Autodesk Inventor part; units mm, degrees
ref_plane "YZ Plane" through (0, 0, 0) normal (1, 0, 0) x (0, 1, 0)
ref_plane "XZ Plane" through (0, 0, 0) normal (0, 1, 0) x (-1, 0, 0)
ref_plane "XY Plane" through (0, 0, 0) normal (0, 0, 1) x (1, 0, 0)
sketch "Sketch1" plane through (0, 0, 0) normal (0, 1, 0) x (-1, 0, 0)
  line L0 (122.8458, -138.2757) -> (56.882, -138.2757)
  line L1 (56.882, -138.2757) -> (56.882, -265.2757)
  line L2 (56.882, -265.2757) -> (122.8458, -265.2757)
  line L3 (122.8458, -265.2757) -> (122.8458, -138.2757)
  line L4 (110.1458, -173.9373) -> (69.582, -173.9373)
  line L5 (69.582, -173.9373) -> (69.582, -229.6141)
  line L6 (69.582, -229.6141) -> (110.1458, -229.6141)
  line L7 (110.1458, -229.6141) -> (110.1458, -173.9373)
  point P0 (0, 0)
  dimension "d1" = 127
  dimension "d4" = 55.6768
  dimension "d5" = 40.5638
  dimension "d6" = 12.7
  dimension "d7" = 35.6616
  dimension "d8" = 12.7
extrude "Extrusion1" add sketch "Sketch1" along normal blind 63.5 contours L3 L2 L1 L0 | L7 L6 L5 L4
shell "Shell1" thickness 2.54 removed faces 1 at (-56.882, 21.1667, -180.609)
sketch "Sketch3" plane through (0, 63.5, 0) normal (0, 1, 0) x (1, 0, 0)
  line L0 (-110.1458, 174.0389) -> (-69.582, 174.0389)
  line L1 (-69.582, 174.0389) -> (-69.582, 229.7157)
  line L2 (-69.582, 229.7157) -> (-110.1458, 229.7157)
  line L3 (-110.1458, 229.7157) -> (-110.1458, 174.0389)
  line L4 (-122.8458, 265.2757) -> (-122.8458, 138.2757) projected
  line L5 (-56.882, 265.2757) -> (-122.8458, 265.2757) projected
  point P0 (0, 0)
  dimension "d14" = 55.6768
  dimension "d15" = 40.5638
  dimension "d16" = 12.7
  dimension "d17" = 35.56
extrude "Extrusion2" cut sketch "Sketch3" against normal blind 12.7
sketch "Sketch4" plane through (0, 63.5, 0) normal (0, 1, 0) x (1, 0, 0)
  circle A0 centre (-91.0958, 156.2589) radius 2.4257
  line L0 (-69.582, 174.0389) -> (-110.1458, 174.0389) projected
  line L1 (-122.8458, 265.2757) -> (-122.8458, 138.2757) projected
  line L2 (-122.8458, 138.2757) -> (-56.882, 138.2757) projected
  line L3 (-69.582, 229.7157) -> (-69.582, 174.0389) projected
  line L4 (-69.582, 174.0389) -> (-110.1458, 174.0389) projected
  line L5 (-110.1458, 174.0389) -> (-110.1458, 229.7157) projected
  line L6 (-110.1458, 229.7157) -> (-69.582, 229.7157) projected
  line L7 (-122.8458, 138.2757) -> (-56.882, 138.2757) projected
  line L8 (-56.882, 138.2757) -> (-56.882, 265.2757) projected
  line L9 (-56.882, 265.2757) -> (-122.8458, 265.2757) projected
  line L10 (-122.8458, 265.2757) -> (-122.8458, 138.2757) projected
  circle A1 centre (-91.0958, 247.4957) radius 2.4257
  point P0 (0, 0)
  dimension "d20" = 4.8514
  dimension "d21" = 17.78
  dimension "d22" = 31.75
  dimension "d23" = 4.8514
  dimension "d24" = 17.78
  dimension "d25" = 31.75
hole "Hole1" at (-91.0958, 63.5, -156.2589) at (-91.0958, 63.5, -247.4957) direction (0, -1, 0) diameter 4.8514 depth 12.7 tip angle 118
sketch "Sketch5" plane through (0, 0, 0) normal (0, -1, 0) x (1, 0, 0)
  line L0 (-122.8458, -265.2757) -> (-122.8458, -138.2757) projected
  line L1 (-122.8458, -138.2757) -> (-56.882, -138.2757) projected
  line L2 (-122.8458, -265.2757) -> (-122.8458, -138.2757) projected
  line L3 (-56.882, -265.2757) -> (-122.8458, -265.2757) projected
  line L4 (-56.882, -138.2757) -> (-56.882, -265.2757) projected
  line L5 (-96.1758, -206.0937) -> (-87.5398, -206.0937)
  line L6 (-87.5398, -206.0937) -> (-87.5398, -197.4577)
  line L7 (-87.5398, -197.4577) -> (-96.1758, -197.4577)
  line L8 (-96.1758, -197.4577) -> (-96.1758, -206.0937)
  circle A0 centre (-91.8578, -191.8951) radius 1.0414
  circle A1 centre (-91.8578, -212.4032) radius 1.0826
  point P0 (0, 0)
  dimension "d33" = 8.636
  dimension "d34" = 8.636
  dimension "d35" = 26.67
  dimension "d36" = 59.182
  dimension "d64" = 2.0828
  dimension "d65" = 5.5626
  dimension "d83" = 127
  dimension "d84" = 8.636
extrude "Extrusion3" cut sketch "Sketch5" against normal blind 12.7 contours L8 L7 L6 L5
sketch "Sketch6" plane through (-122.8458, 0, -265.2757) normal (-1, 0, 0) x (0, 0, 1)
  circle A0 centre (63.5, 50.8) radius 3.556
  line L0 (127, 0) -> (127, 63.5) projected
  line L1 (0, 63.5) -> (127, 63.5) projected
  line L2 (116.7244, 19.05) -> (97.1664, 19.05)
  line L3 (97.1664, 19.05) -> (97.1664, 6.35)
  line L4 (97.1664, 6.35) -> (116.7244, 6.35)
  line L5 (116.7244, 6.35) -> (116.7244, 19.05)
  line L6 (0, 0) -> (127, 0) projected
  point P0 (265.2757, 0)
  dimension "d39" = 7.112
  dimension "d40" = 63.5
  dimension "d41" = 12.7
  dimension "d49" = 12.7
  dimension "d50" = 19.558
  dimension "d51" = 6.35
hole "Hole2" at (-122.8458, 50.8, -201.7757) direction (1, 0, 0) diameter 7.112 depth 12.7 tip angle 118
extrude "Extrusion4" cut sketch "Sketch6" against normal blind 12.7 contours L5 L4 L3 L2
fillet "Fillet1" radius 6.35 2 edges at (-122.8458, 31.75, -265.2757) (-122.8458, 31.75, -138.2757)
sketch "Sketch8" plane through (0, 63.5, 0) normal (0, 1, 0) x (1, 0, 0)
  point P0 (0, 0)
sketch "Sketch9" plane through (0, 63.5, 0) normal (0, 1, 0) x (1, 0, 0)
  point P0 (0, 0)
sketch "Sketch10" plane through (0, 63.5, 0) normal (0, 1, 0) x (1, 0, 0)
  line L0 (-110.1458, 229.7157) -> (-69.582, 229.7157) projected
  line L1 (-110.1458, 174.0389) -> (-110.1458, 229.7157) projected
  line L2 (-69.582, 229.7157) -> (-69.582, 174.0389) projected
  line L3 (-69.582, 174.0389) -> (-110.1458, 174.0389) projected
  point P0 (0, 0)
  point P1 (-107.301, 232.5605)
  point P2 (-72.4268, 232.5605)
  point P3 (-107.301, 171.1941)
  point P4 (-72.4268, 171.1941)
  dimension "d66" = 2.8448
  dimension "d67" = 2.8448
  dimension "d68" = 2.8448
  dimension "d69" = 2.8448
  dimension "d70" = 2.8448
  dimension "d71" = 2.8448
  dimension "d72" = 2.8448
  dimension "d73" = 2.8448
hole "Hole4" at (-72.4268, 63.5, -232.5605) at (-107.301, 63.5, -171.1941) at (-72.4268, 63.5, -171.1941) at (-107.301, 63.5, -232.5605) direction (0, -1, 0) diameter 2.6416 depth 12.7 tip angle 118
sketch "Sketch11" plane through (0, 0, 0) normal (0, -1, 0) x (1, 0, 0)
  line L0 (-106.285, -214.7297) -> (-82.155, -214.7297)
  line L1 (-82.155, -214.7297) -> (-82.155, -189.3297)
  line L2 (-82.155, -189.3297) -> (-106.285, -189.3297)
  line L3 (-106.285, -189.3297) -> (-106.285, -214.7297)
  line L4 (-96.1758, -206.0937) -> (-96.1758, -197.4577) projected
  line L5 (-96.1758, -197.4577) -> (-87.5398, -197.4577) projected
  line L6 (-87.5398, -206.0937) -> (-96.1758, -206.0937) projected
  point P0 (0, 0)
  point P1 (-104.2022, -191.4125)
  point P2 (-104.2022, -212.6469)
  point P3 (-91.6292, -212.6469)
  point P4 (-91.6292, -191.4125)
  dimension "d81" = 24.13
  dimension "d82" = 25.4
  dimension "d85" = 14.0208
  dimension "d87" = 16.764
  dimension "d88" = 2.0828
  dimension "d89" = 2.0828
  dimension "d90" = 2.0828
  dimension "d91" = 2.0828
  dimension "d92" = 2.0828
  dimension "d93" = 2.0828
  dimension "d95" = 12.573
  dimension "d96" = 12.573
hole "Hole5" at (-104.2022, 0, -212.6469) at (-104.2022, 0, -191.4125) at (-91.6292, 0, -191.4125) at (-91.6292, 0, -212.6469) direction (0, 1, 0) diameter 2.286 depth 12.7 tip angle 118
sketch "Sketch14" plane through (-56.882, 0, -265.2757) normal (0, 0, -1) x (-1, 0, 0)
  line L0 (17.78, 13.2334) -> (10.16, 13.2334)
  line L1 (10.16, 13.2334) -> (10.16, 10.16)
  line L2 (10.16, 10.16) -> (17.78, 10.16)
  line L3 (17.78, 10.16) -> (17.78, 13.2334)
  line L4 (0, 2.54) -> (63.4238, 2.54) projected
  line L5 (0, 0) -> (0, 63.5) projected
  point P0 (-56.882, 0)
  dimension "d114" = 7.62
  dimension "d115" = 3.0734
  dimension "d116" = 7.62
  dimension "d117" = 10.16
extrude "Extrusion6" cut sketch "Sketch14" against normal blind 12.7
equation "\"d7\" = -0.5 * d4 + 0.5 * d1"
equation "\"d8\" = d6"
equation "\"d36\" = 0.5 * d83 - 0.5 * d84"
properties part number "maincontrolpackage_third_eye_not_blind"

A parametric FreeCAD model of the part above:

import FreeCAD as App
import Part
import Sketcher
Q = App.Units.Quantity


def edges_at(feature, points):
    """Names of the edges that pass closest to the given points."""
    edges = feature.Shape.Edges
    near = lambda p: min(range(len(edges)), key=lambda i: edges[i].distToShape(Part.Vertex(*p))[0])
    return sorted({f"Edge{near(p) + 1}" for p in points})


def faces_at(feature, points):
    """Names of the faces that lie closest to the given points."""
    faces = feature.Shape.Faces
    near = lambda p: min(range(len(faces)), key=lambda i: faces[i].distToShape(Part.Vertex(*p))[0])
    return sorted({f"Face{near(p) + 1}" for p in points})

doc = App.newDocument("Part")
body = doc.addObject("PartDesign::Body", "Body")

# Sketch on XZ plane
sketch1 = body.newObject("Sketcher::SketchObject", "Sketch")
sketch1.AttachmentSupport = (doc.getObject("XZ_Plane"), [""])
sketch1.MapMode = "FlatFace"
sketch1.addGeometry([
    Part.LineSegment(App.Vector(-123, -265, 0), App.Vector(-123, -138, 0)),
    Part.LineSegment(App.Vector(-123, -138, 0), App.Vector(-57, -138, 0)),
    Part.LineSegment(App.Vector(-57, -138, 0), App.Vector(-57, -265, 0)),
    Part.LineSegment(App.Vector(-57, -265, 0), App.Vector(-123, -265, 0)),
], False)
sketch1.addConstraint([
    Sketcher.Constraint("Coincident", 0, 2, 1, 1),
    Sketcher.Constraint("Coincident", 1, 2, 2, 1),
    Sketcher.Constraint("Coincident", 2, 2, 3, 1),
    Sketcher.Constraint("Coincident", 3, 2, 0, 1),
    Sketcher.Constraint("Vertical", 0),
    Sketcher.Constraint("Horizontal", 1),
    Sketcher.Constraint("Vertical", 2),
    Sketcher.Constraint("Horizontal", 3),
    Sketcher.Constraint("DistanceY", 0, 1, 0, 2, Q("5 in")),
    Sketcher.Constraint("DistanceX", 1, 1, 1, 2, Q("2.597 in")),
    Sketcher.Constraint("DistanceX", 0, 2, -1, 1, Q("122.8458 mm")),
    Sketcher.Constraint("DistanceY", 0, 2, -1, 1, Q("138.2757 mm")),
])
pad1 = body.newObject("PartDesign::Pad", "Pad")
pad1.Profile = sketch1
pad1.Length = Q("2.5 in")
pad1.Reversed = True
doc.recompute()

thickness = body.newObject("PartDesign::Thickness", "Thickness")
thickness.Base = (pad1, faces_at(pad1, [(-56.882, 21.167, -180.609)]))
thickness.Value = Q("0.1 in")
thickness.Reversed = True
thickness.Join = "Intersection"

# Sketch on XZ plane
sketch2 = body.newObject("Sketcher::SketchObject", "Sketch001")
sketch2.AttachmentSupport = (doc.getObject("XZ_Plane"), [""])
sketch2.MapMode = "FlatFace"
sketch2.AttachmentOffset = App.Placement(App.Vector(0, 0, -2.5 * 25.4), App.Rotation())
sketch2.addGeometry([
    Part.LineSegment(App.Vector(-110, -230, 0), App.Vector(-110, -174, 0)),
    Part.LineSegment(App.Vector(-110, -174, 0), App.Vector(-70, -174, 0)),
    Part.LineSegment(App.Vector(-70, -174, 0), App.Vector(-70, -230, 0)),
    Part.LineSegment(App.Vector(-70, -230, 0), App.Vector(-110, -230, 0)),
], False)
sketch2.addConstraint([
    Sketcher.Constraint("Coincident", 0, 2, 1, 1),
    Sketcher.Constraint("Coincident", 1, 2, 2, 1),
    Sketcher.Constraint("Coincident", 2, 2, 3, 1),
    Sketcher.Constraint("Coincident", 3, 2, 0, 1),
    Sketcher.Constraint("Vertical", 0),
    Sketcher.Constraint("Horizontal", 1),
    Sketcher.Constraint("Vertical", 2),
    Sketcher.Constraint("Horizontal", 3),
    Sketcher.Constraint("DistanceX", 1, 1, 1, 2, Q("1.597 in")),
    Sketcher.Constraint("DistanceY", 0, 1, 0, 2, Q("2.192 in")),
    Sketcher.Constraint("DistanceX", 0, 2, -1, 1, Q("110.1458 mm")),
    Sketcher.Constraint("DistanceY", 0, 2, -1, 1, Q("174.039 mm")),
])
pocket1 = body.newObject("PartDesign::Pocket", "Pocket")
pocket1.Profile = sketch2
pocket1.Length = Q("0.5 in")
pocket1.Reversed = True

# Sketch on XZ plane
sketch3 = body.newObject("Sketcher::SketchObject", "Sketch002")
sketch3.AttachmentSupport = (doc.getObject("XZ_Plane"), [""])
sketch3.MapMode = "FlatFace"
sketch3.AttachmentOffset = App.Placement(App.Vector(0, 0, -2.5 * 25.4), App.Rotation())
sketch3.addGeometry([
    Part.Circle(App.Vector(-91.1, -156.3, 0), App.Vector(0, 0, 1), 2.4),
    Part.Circle(App.Vector(-91.1, -247.5, 0), App.Vector(0, 0, 1), 2.4),
], False)
sketch3.addConstraint([
    Sketcher.Constraint("Equal", 0, 1),
    Sketcher.Constraint("Vertical", 0, 3, 1, 3),
    Sketcher.Constraint("Diameter", 0, Q("0.191 in")),
    Sketcher.Constraint("DistanceY", 1, 3, 0, 3, Q("3.592 in")),
    Sketcher.Constraint("DistanceX", 0, 3, -1, 1, Q("91.0958 mm")),
    Sketcher.Constraint("DistanceY", 0, 3, -1, 1, Q("156.259 mm")),
])
doc.recompute()
hole = body.newObject("PartDesign::Hole", "Hole")
hole.Profile = sketch3
hole.ThreadType = "None"
hole.Diameter = Q("0.191 in")
hole.DepthType = "Dimension"
hole.Depth = Q("0.5 in")
hole.DrillPoint = "Angled"
hole.DrillPointAngle = 118
hole.Reversed = True

# Sketch on XZ plane
sketch4 = body.newObject("Sketcher::SketchObject", "Sketch003")
sketch4.AttachmentSupport = (doc.getObject("XZ_Plane"), [""])
sketch4.MapMode = "FlatFace"
sketch4.addGeometry([
    Part.LineSegment(App.Vector(-96, -197, 0), App.Vector(-96, -206, 0)),
    Part.LineSegment(App.Vector(-96, -206, 0), App.Vector(-88, -206, 0)),
    Part.LineSegment(App.Vector(-88, -206, 0), App.Vector(-88, -197, 0)),
    Part.LineSegment(App.Vector(-88, -197, 0), App.Vector(-96, -197, 0)),
], False)
sketch4.addConstraint([
    Sketcher.Constraint("Coincident", 0, 2, 1, 1),
    Sketcher.Constraint("Coincident", 1, 2, 2, 1),
    Sketcher.Constraint("Coincident", 2, 2, 3, 1),
    Sketcher.Constraint("Coincident", 3, 2, 0, 1),
    Sketcher.Constraint("Vertical", 0),
    Sketcher.Constraint("Horizontal", 1),
    Sketcher.Constraint("Vertical", 2),
    Sketcher.Constraint("Horizontal", 3),
    Sketcher.Constraint("Equal", 3, 0),
    Sketcher.Constraint("DistanceX", 1, 1, 1, 2, Q("0.34 in")),
    Sketcher.Constraint("DistanceX", 0, 2, -1, 1, Q("96.1758 mm")),
    Sketcher.Constraint("DistanceY", 0, 2, -1, 1, Q("206.0937 mm")),
])
pocket2 = body.newObject("PartDesign::Pocket", "Pocket001")
pocket2.Profile = sketch4
pocket2.Length = Q("0.5 in")

# Sketch on YZ plane
sketch5 = body.newObject("Sketcher::SketchObject", "Sketch004")
sketch5.AttachmentSupport = (doc.getObject("YZ_Plane"), [""])
sketch5.MapMode = "FlatFace"
sketch5.AttachmentOffset = App.Placement(App.Vector(0, 0, -122.8458), App.Rotation())
sketch5.addGeometry(Part.Circle(App.Vector(50.8, -201.8, 0), App.Vector(0, 0, 1), 3.6), False)
sketch5.addConstraint([
    Sketcher.Constraint("Diameter", 0, Q("0.28 in")),
    Sketcher.Constraint("DistanceX", -1, 1, 0, 3, Q("2 in")),
    Sketcher.Constraint("DistanceY", 0, 3, -1, 1, Q("201.7757 mm")),
])
doc.recompute()
hole2 = body.newObject("PartDesign::Hole", "Hole001")
hole2.Profile = sketch5
hole2.ThreadType = "None"
hole2.Diameter = Q("0.28 in")
hole2.DepthType = "Dimension"
hole2.Depth = Q("0.5 in")
hole2.DrillPoint = "Angled"
hole2.DrillPointAngle = 118
hole2.Reversed = True

# Sketch on YZ plane
sketch6 = body.newObject("Sketcher::SketchObject", "Sketch005")
sketch6.AttachmentSupport = (doc.getObject("YZ_Plane"), [""])
sketch6.MapMode = "FlatFace"
sketch6.AttachmentOffset = App.Placement(App.Vector(0, 0, -122.8458), App.Rotation())
sketch6.addGeometry([
    Part.LineSegment(App.Vector(6, -149, 0), App.Vector(19, -149, 0)),
    Part.LineSegment(App.Vector(19, -149, 0), App.Vector(19, -168, 0)),
    Part.LineSegment(App.Vector(19, -168, 0), App.Vector(6, -168, 0)),
    Part.LineSegment(App.Vector(6, -168, 0), App.Vector(6, -149, 0)),
], False)
sketch6.addConstraint([
    Sketcher.Constraint("Coincident", 0, 2, 1, 1),
    Sketcher.Constraint("Coincident", 1, 2, 2, 1),
    Sketcher.Constraint("Coincident", 2, 2, 3, 1),
    Sketcher.Constraint("Coincident", 3, 2, 0, 1),
    Sketcher.Constraint("Horizontal", 0),
    Sketcher.Constraint("Vertical", 1),
    Sketcher.Constraint("Horizontal", 2),
    Sketcher.Constraint("Vertical", 3),
    Sketcher.Constraint("DistanceX", 0, 1, 0, 2, Q("0.5 in")),
    Sketcher.Constraint("DistanceY", 1, 2, 1, 1, Q("0.77 in")),
    Sketcher.Constraint("DistanceX", -1, 1, 2, 2, Q("0.25 in")),
    Sketcher.Constraint("DistanceY", 0, 2, -1, 1, Q("148.5513 mm")),
])
pocket3 = body.newObject("PartDesign::Pocket", "Pocket002")
pocket3.Profile = sketch6
pocket3.Length = Q("0.5 in")
pocket3.Reversed = True
doc.recompute()

fillet = body.newObject("PartDesign::Fillet", "Fillet")
fillet.Base = (pocket3, edges_at(pocket3, [(-122.846, 31.75, -265.276), (-122.846, 31.75, -138.276)]))
fillet.Radius = Q("0.25 in")

# Sketch on XZ plane
sketch7 = body.newObject("Sketcher::SketchObject", "Sketch006")
sketch7.AttachmentSupport = (doc.getObject("XZ_Plane"), [""])
sketch7.MapMode = "FlatFace"
sketch7.AttachmentOffset = App.Placement(App.Vector(0, 0, -2.5 * 25.4), App.Rotation())
sketch7.addGeometry([
    Part.Circle(App.Vector(-72.4, -232.6, 0), App.Vector(0, 0, 1), 1.3),
    Part.Circle(App.Vector(-107.3, -171.2, 0), App.Vector(0, 0, 1), 1.3),
    Part.Circle(App.Vector(-72.4, -171.2, 0), App.Vector(0, 0, 1), 1.3),
    Part.Circle(App.Vector(-107.3, -232.6, 0), App.Vector(0, 0, 1), 1.3),
], False)
sketch7.addConstraint([
    Sketcher.Constraint("Equal", 0, 1),
    Sketcher.Constraint("Equal", 1, 2),
    Sketcher.Constraint("Equal", 2, 3),
    Sketcher.Constraint("Horizontal", 1, 3, 2, 3),
    Sketcher.Constraint("Horizontal", 0, 3, 3, 3),
    Sketcher.Constraint("Vertical", 0, 3, 2, 3),
    Sketcher.Constraint("Vertical", 1, 3, 3, 3),
    Sketcher.Constraint("Diameter", 0, Q("0.104 in")),
    Sketcher.Constraint("DistanceX", 1, 3, 0, 3, Q("1.373 in")),
    Sketcher.Constraint("DistanceY", 0, 3, 1, 3, Q("2.416 in")),
    Sketcher.Constraint("DistanceX", 0, 3, -1, 1, Q("72.4268 mm")),
    Sketcher.Constraint("DistanceY", 0, 3, -1, 1, Q("232.5605 mm")),
])
doc.recompute()
hole3 = body.newObject("PartDesign::Hole", "Hole002")
hole3.Profile = sketch7
hole3.ThreadType = "None"
hole3.Diameter = Q("0.104 in")
hole3.DepthType = "Dimension"
hole3.Depth = Q("0.5 in")
hole3.DrillPoint = "Angled"
hole3.DrillPointAngle = 118
hole3.Reversed = True

# Sketch on XZ plane
sketch8 = body.newObject("Sketcher::SketchObject", "Sketch007")
sketch8.AttachmentSupport = (doc.getObject("XZ_Plane"), [""])
sketch8.MapMode = "FlatFace"
sketch8.addGeometry([
    Part.Circle(App.Vector(-104.2, -212.6, 0), App.Vector(0, 0, 1), 1.1),
    Part.Circle(App.Vector(-104.2, -191.4, 0), App.Vector(0, 0, 1), 1.1),
    Part.Circle(App.Vector(-91.6, -191.4, 0), App.Vector(0, 0, 1), 1.1),
    Part.Circle(App.Vector(-91.6, -212.6, 0), App.Vector(0, 0, 1), 1.1),
], False)
sketch8.addConstraint([
    Sketcher.Constraint("Equal", 0, 1),
    Sketcher.Constraint("Equal", 1, 2),
    Sketcher.Constraint("Equal", 2, 3),
    Sketcher.Constraint("Horizontal", 1, 3, 2, 3),
    Sketcher.Constraint("Horizontal", 0, 3, 3, 3),
    Sketcher.Constraint("Vertical", 0, 3, 1, 3),
    Sketcher.Constraint("Vertical", 2, 3, 3, 3),
    Sketcher.Constraint("Diameter", 0, Q("0.09 in")),
    Sketcher.Constraint("DistanceY", 0, 3, 1, 3, Q("0.836 in")),
    Sketcher.Constraint("DistanceX", 1, 3, 2, 3, Q("0.495 in")),
    Sketcher.Constraint("DistanceX", 0, 3, -1, 1, Q("104.2022 mm")),
    Sketcher.Constraint("DistanceY", 0, 3, -1, 1, Q("212.647 mm")),
])
doc.recompute()
hole4 = body.newObject("PartDesign::Hole", "Hole003")
hole4.Profile = sketch8
hole4.ThreadType = "None"
hole4.Diameter = Q("0.09 in")
hole4.DepthType = "Dimension"
hole4.Depth = Q("0.5 in")
hole4.DrillPoint = "Angled"
hole4.DrillPointAngle = 118

# Sketch on XY plane
sketch9 = body.newObject("Sketcher::SketchObject", "Sketch008")
sketch9.AttachmentSupport = (doc.getObject("XY_Plane"), [""])
sketch9.MapMode = "FlatFace"
sketch9.AttachmentOffset = App.Placement(App.Vector(0, 0, -265.2757), App.Rotation())
sketch9.addGeometry([
    Part.LineSegment(App.Vector(-74.7, 10.2, 0), App.Vector(-74.7, 13.2, 0)),
    Part.LineSegment(App.Vector(-74.7, 13.2, 0), App.Vector(-67, 13.2, 0)),
    Part.LineSegment(App.Vector(-67, 13.2, 0), App.Vector(-67, 10.2, 0)),
    Part.LineSegment(App.Vector(-67, 10.2, 0), App.Vector(-74.7, 10.2, 0)),
], False)
sketch9.addConstraint([
    Sketcher.Constraint("Coincident", 0, 2, 1, 1),
    Sketcher.Constraint("Coincident", 1, 2, 2, 1),
    Sketcher.Constraint("Coincident", 2, 2, 3, 1),
    Sketcher.Constraint("Coincident", 3, 2, 0, 1),
    Sketcher.Constraint("Vertical", 0),
    Sketcher.Constraint("Horizontal", 1),
    Sketcher.Constraint("Vertical", 2),
    Sketcher.Constraint("Horizontal", 3),
    Sketcher.Constraint("DistanceX", 1, 1, 1, 2, Q("0.3 in")),
    Sketcher.Constraint("DistanceY", -1, 1, 2, 2, Q("0.4 in")),
    Sketcher.Constraint("DistanceY", 0, 1, 0, 2, Q("0.121 in")),
    Sketcher.Constraint("DistanceX", 0, 2, -1, 1, Q("74.662 mm")),
])
pocket4 = body.newObject("PartDesign::Pocket", "Pocket003")
pocket4.Profile = sketch9
pocket4.Length = Q("0.5 in")
pocket4.Reversed = True

doc.recompute()
